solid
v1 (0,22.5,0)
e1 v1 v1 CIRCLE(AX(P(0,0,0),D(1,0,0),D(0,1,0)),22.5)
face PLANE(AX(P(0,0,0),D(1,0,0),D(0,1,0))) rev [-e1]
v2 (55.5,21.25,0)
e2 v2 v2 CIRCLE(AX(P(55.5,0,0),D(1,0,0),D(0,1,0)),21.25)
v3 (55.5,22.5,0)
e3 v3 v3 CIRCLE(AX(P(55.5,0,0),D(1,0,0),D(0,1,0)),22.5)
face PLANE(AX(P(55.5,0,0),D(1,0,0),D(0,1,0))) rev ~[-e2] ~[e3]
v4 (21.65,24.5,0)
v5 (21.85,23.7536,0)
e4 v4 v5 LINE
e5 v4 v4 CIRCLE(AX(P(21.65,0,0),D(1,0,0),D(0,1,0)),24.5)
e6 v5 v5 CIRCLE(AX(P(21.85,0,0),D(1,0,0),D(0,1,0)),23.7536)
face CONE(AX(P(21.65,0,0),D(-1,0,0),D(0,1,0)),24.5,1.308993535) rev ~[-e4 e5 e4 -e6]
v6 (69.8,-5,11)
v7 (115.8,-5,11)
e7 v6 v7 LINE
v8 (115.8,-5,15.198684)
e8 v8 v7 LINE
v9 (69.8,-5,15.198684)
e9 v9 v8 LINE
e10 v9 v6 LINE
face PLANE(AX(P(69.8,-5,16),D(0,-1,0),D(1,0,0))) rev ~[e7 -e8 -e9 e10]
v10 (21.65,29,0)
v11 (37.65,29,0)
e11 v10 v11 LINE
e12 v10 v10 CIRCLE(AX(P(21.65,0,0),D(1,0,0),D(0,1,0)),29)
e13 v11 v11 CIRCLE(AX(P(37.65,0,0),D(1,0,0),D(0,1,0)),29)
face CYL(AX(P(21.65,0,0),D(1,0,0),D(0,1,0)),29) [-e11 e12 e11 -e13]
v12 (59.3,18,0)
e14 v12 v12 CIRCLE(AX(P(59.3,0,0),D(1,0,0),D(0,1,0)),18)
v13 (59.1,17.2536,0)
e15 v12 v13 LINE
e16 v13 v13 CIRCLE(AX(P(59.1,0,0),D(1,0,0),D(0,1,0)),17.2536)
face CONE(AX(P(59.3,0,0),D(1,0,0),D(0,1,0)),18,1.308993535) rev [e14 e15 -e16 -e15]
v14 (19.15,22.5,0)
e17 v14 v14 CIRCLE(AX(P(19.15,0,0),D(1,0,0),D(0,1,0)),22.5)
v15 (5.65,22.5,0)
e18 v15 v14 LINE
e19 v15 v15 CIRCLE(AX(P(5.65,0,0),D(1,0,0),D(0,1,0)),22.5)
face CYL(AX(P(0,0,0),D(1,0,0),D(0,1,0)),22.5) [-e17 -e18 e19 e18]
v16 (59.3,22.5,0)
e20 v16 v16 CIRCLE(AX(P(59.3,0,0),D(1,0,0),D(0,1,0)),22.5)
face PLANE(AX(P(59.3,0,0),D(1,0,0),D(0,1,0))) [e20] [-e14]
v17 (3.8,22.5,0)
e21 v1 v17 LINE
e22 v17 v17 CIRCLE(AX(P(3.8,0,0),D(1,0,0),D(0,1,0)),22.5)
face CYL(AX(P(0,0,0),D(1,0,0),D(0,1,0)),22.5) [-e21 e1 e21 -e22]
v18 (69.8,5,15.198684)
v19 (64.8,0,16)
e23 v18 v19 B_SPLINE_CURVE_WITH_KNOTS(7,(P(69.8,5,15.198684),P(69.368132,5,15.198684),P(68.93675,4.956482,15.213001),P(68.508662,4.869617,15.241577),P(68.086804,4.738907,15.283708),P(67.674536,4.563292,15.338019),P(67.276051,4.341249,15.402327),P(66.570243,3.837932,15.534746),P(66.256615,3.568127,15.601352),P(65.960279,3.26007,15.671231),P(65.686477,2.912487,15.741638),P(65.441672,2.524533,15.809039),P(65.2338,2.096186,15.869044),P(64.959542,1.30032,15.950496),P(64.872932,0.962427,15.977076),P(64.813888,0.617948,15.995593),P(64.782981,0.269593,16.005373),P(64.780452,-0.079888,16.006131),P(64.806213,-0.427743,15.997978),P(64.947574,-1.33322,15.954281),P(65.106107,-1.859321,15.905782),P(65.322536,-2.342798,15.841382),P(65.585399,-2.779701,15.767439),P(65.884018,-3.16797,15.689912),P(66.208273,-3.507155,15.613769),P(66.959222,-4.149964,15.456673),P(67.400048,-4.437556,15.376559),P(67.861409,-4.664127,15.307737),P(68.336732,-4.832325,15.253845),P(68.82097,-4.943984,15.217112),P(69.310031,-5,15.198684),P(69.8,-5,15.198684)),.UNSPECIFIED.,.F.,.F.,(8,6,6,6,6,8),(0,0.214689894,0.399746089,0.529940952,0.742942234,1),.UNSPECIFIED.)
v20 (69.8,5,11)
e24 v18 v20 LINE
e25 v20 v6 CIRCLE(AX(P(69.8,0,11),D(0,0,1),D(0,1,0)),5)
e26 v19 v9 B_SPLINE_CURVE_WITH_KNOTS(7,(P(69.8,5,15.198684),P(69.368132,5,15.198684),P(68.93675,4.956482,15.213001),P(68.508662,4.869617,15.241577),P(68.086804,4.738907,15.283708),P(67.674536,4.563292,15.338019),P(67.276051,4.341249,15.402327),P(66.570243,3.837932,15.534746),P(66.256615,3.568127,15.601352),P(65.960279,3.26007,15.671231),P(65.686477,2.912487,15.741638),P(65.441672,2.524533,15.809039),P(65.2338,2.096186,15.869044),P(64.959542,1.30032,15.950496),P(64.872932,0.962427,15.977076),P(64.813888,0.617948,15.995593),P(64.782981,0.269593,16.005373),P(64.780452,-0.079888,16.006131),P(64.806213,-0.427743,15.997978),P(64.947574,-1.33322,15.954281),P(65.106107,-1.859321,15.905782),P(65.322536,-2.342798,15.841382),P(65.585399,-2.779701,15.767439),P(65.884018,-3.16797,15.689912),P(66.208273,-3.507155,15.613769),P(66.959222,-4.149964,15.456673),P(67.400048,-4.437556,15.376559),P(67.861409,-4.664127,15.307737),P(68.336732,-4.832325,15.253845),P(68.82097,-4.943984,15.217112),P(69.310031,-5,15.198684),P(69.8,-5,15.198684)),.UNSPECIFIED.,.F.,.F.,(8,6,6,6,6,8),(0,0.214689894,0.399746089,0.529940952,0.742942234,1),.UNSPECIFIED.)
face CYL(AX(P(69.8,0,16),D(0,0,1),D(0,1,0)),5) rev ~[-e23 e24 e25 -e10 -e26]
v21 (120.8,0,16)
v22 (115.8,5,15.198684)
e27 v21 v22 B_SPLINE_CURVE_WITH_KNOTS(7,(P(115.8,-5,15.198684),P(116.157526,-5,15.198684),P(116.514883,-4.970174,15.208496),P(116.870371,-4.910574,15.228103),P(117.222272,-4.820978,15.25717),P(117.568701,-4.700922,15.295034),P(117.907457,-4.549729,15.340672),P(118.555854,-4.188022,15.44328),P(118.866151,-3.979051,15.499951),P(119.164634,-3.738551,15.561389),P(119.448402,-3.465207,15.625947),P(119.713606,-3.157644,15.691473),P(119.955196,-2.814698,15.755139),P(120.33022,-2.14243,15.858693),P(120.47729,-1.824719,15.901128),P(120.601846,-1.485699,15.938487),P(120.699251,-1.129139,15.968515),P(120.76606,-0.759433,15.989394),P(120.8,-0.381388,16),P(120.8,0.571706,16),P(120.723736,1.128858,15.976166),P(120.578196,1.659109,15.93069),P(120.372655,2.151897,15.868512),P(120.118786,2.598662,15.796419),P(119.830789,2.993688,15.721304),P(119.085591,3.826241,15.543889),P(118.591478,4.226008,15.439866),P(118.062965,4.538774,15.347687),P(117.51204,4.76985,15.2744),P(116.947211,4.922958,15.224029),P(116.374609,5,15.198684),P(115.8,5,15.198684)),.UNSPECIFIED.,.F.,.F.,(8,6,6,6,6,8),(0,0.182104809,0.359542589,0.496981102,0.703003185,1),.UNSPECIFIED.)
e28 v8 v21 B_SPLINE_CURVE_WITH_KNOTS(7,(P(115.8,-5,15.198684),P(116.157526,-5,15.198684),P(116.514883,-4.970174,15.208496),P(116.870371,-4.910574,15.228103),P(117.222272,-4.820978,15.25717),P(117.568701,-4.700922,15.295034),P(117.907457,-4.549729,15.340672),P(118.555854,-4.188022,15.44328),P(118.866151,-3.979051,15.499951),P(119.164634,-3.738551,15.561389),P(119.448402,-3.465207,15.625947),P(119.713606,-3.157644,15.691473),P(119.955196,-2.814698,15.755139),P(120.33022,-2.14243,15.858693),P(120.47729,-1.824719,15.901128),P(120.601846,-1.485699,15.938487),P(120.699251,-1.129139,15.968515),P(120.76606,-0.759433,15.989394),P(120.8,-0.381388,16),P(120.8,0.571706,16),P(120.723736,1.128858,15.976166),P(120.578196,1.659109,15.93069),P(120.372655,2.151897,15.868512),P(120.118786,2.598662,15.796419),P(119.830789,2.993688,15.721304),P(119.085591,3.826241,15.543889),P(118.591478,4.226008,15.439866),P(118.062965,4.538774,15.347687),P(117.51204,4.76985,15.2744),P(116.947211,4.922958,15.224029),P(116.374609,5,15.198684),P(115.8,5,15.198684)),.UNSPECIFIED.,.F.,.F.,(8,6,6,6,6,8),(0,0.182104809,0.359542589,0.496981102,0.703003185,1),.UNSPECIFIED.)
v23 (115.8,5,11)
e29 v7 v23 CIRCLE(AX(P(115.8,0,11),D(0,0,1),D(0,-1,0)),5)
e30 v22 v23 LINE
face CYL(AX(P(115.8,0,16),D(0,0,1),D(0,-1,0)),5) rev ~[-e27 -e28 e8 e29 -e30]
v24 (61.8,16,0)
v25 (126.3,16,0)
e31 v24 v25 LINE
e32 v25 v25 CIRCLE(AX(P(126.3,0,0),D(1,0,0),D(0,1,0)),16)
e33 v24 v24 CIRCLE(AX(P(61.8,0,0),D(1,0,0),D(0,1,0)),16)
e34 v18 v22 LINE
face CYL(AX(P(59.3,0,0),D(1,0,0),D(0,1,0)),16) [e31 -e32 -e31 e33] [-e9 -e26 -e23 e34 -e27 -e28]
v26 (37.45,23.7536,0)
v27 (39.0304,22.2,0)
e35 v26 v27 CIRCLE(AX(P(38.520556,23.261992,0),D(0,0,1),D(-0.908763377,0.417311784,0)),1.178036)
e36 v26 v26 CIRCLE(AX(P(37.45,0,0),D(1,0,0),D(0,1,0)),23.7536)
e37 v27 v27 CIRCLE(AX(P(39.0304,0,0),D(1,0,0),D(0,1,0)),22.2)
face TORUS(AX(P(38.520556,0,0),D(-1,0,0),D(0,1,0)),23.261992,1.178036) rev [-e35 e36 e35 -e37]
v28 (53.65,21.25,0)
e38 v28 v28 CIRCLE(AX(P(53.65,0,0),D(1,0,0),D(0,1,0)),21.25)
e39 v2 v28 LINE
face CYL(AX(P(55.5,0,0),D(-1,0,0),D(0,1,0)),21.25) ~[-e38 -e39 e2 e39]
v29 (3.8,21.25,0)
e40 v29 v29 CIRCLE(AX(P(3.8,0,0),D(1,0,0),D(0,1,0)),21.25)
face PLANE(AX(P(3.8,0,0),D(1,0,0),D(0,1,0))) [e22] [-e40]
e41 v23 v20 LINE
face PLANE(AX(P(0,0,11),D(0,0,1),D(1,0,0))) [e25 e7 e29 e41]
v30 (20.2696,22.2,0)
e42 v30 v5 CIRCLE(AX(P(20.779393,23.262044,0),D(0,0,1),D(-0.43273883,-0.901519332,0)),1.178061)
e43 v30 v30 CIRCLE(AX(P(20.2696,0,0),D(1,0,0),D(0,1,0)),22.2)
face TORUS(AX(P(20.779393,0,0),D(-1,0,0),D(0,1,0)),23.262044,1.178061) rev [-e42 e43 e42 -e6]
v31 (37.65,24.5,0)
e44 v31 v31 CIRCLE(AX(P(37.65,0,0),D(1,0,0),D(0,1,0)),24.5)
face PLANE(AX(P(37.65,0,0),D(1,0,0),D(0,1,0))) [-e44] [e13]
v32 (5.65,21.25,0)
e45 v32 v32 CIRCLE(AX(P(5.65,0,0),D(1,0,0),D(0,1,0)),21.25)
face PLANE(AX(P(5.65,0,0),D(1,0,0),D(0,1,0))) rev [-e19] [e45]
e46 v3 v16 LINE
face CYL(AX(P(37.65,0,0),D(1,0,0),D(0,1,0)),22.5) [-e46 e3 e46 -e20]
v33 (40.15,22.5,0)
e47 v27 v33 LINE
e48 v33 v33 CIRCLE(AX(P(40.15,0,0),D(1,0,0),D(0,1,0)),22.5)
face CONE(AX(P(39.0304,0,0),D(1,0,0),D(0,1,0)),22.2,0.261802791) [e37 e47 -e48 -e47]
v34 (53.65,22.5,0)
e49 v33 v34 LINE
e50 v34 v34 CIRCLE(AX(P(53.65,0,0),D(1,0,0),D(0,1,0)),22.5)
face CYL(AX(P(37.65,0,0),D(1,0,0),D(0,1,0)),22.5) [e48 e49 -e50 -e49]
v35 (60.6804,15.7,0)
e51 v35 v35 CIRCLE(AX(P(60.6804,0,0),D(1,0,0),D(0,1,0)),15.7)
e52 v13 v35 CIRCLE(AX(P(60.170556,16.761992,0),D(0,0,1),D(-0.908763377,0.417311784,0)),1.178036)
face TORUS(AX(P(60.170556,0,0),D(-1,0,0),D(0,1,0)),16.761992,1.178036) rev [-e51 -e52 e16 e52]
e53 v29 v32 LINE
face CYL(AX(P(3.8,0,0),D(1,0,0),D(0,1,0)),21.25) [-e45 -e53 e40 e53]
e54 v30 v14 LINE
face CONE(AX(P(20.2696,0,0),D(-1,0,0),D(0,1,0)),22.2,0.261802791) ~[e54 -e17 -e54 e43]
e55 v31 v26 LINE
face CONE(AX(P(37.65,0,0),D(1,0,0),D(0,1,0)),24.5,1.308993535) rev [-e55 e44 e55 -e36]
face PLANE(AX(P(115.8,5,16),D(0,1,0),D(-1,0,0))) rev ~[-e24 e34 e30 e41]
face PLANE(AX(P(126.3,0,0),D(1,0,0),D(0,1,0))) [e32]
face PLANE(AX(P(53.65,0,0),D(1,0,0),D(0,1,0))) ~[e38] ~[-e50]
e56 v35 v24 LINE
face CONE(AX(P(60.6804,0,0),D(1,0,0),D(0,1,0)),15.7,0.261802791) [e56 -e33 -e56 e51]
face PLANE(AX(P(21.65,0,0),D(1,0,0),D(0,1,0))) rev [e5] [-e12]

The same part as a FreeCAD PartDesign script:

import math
import FreeCAD as App
import Part
import Sketcher
Q = App.Units.Quantity


def add_polygon(sketch, points):
    """Adds a closed chain of lines whose ends are joined by coincident constraints."""
    first, n = sketch.GeometryCount, len(points)
    for a, b in zip(points, points[1:] + points[:1]):
        sketch.addGeometry(Part.LineSegment(App.Vector(*a, 0), App.Vector(*b, 0)), False)
    for i in range(n):
        sketch.addConstraint(Sketcher.Constraint("Coincident", first + i, 2, first + (i + 1) % n, 1))

doc = App.newDocument("Part")
body = doc.addObject("PartDesign::Body", "Body")

sketch1 = body.newObject("Sketcher::SketchObject", "Sketch")
sketch1.AttachmentSupport = (doc.getObject("XY_Plane"), [""])
sketch1.MapMode = "FlatFace"
add_polygon(sketch1, [(0, 22), (0, 0), (126, 0), (126, 16), (59, 16), (59, 22), (38, 22), (38, 29), (22, 29), (22, 22)])
sketch1.addConstraint([
    Sketcher.Constraint("Vertical", 0),
    Sketcher.Constraint("Horizontal", 1),
    Sketcher.Constraint("Vertical", 2),
    Sketcher.Constraint("Horizontal", 3),
    Sketcher.Constraint("Vertical", 4),
    Sketcher.Constraint("Horizontal", 5),
    Sketcher.Constraint("Vertical", 6),
    Sketcher.Constraint("Horizontal", 7),
    Sketcher.Constraint("Vertical", 8),
    Sketcher.Constraint("Horizontal", 9),
    Sketcher.Constraint("Coincident", 0, 2, -1, 1),
    Sketcher.Constraint("Horizontal", 5, 2, 8, 2),
    Sketcher.Constraint("Equal", 5, 9),
    Sketcher.Constraint("Equal", 7, 2),
    Sketcher.Constraint("Equal", 4, 6),
    Sketcher.Constraint("DistanceX", 3, 2, 3, 1, Q("67 mm")),
    Sketcher.Constraint("DistanceX", 7, 2, 7, 1, Q("16 mm")),
    Sketcher.Constraint("DistanceX", 1, 1, 1, 2, Q("126.3 mm")),
    Sketcher.Constraint("DistanceY", 0, 2, 0, 1, Q("22.5 mm")),
])
revolution = body.newObject("PartDesign::Revolution", "Revolution")
revolution.Profile = sketch1
revolution.ReferenceAxis = (sketch1, ["H_Axis"])
revolution.Angle = 360

sketch2 = body.newObject("Sketcher::SketchObject", "Sketch001")
sketch2.AttachmentSupport = (doc.getObject("XY_Plane"), [""])
sketch2.MapMode = "FlatFace"
add_polygon(sketch2, [(3.8, 22.5), (3.8, 21.2), (5.7, 21.2), (5.7, 22.5)])
sketch2.addConstraint([
    Sketcher.Constraint("Vertical", 0),
    Sketcher.Constraint("Horizontal", 1),
    Sketcher.Constraint("Vertical", 2),
    Sketcher.Constraint("Horizontal", 3),
    Sketcher.Constraint("DistanceX", 1, 1, 1, 2, Q("1.85 mm")),
    Sketcher.Constraint("DistanceY", 0, 2, 0, 1, Q("1.25 mm")),
    Sketcher.Constraint("DistanceX", -1, 1, 0, 2, Q("3.8 mm")),
    Sketcher.Constraint("DistanceY", -1, 1, 2, 2, Q("22.5 mm")),
])
groove = body.newObject("PartDesign::Groove", "Groove")
groove.Profile = sketch2
groove.ReferenceAxis = (sketch2, ["H_Axis"])
groove.Angle = 360

sketch3 = body.newObject("Sketcher::SketchObject", "Sketch002")
sketch3.AttachmentSupport = (doc.getObject("XY_Plane"), [""])
sketch3.MapMode = "FlatFace"
sketch3.addGeometry([
    Part.LineSegment(App.Vector(21.9, 23.8, 0), App.Vector(21.6, 24.5, 0)),
    Part.LineSegment(App.Vector(21.6, 24.5, 0), App.Vector(19.1, 24.5, 0)),
    Part.LineSegment(App.Vector(19.1, 24.5, 0), App.Vector(19.1, 22.5, 0)),
    Part.LineSegment(App.Vector(19.1, 22.5, 0), App.Vector(20.3, 22.2, 0)),
    Part.ArcOfCircle(Part.Circle(App.Vector(20.8, 23.3, 0), App.Vector(0, 0, 1), 1.2), math.radians(-116), math.radians(25)),
], False)
sketch3.addConstraint([
    Sketcher.Constraint("Coincident", 0, 2, 1, 1),
    Sketcher.Constraint("Coincident", 1, 2, 2, 1),
    Sketcher.Constraint("Coincident", 2, 2, 3, 1),
    Sketcher.Constraint("Coincident", 3, 2, 4, 1),
    Sketcher.Constraint("Coincident", 4, 2, 0, 1),
    Sketcher.Constraint("Horizontal", 1),
    Sketcher.Constraint("Vertical", 2),
    Sketcher.Constraint("DistanceY", 2, 2, 2, 1, Q("2 mm")),
    Sketcher.Constraint("Angle", 0, Q("105.0002 deg")),
    Sketcher.Constraint("Angle", 3, Q("-15.0002 deg")),
    Sketcher.Constraint("DistanceX", 1, 2, 1, 1, Q("2.5 mm")),
    Sketcher.Constraint("Radius", 4, Q("1.178 mm")),
    Sketcher.Constraint("DistanceY", -1, 1, 0, 2, Q("24.5 mm")),
    Sketcher.Constraint("DistanceY", -1, 1, 3, 2, Q("22.2 mm")),
    Sketcher.Constraint("DistanceX", 0, 2, 4, 2, Q("0.2 mm")),
    Sketcher.Constraint("DistanceX", -1, 1, 0, 2, Q("21.65 mm")),
])
groove2 = body.newObject("PartDesign::Groove", "Groove001")
groove2.Profile = sketch3
groove2.ReferenceAxis = (sketch3, ["H_Axis"])
groove2.Angle = 360

sketch4 = body.newObject("Sketcher::SketchObject", "Sketch003")
sketch4.AttachmentSupport = (doc.getObject("XY_Plane"), [""])
sketch4.MapMode = "FlatFace"
add_polygon(sketch4, [(53.6, 21.2), (55.5, 21.2), (55.5, 22.5), (53.6, 22.5)])
sketch4.addConstraint([
    Sketcher.Constraint("Horizontal", 0),
    Sketcher.Constraint("Vertical", 1),
    Sketcher.Constraint("Horizontal", 2),
    Sketcher.Constraint("Vertical", 3),
    Sketcher.Constraint("DistanceX", 0, 1, 0, 2, Q("1.85 mm")),
    Sketcher.Constraint("DistanceY", 1, 1, 1, 2, Q("1.25 mm")),
    Sketcher.Constraint("DistanceX", -1, 1, 0, 2, Q("55.5 mm")),
    Sketcher.Constraint("DistanceY", -1, 1, 1, 2, Q("22.5 mm")),
])
groove3 = body.newObject("PartDesign::Groove", "Groove002")
groove3.Profile = sketch4
groove3.ReferenceAxis = (sketch4, ["H_Axis"])
groove3.Angle = 360

sketch5 = body.newObject("Sketcher::SketchObject", "Sketch004")
sketch5.AttachmentSupport = (doc.getObject("XY_Plane"), [""])
sketch5.MapMode = "FlatFace"
sketch5.addGeometry([
    Part.LineSegment(App.Vector(40.1, 24.5, 0), App.Vector(37.6, 24.5, 0)),
    Part.LineSegment(App.Vector(37.6, 24.5, 0), App.Vector(37.5, 23.8, 0)),
    Part.ArcOfCircle(Part.Circle(App.Vector(38.5, 23.3, 0), App.Vector(0, 0, 1), 1.2), math.radians(155), math.radians(296)),
    Part.LineSegment(App.Vector(39, 22.2, 0), App.Vector(40.1, 22.5, 0)),
    Part.LineSegment(App.Vector(40.1, 22.5, 0), App.Vector(40.1, 24.5, 0)),
], False)
sketch5.addConstraint([
    Sketcher.Constraint("Coincident", 0, 2, 1, 1),
    Sketcher.Constraint("Coincident", 1, 2, 2, 1),
    Sketcher.Constraint("Coincident", 2, 2, 3, 1),
    Sketcher.Constraint("Coincident", 3, 2, 4, 1),
    Sketcher.Constraint("Coincident", 4, 2, 0, 1),
    Sketcher.Constraint("Horizontal", 0),
    Sketcher.Constraint("Vertical", 4),
    Sketcher.Constraint("DistanceY", 4, 1, 4, 2, Q("2 mm")),
    Sketcher.Constraint("Angle", 1, Q("-105.0002 deg")),
    Sketcher.Constraint("Angle", 3, Q("15.0002 deg")),
    Sketcher.Constraint("DistanceX", 0, 2, 0, 1, Q("2.5 mm")),
    Sketcher.Constraint("Radius", 2, Q("1.178 mm")),
    Sketcher.Constraint("DistanceY", -1, 1, 0, 2, Q("24.5 mm")),
    Sketcher.Constraint("DistanceY", -1, 1, 2, 2, Q("22.2 mm")),
    Sketcher.Constraint("DistanceX", 1, 2, 0, 2, Q("0.2 mm")),
    Sketcher.Constraint("DistanceX", -1, 1, 0, 2, Q("37.65 mm")),
])
groove4 = body.newObject("PartDesign::Groove", "Groove003")
groove4.Profile = sketch5
groove4.ReferenceAxis = (sketch5, ["H_Axis"])
groove4.Angle = 360

sketch6 = body.newObject("Sketcher::SketchObject", "Sketch005")
sketch6.AttachmentSupport = (doc.getObject("XY_Plane"), [""])
sketch6.MapMode = "FlatFace"
sketch6.AttachmentOffset = App.Placement(App.Vector(0, 0, 16), App.Rotation())
sketch6.addGeometry([
    Part.ArcOfCircle(Part.Circle(App.Vector(70, 0, 0), App.Vector(0, 0, 1), 5), math.radians(90), math.radians(270)),
    Part.LineSegment(App.Vector(70, -5, 0), App.Vector(116, -5, 0)),
    Part.ArcOfCircle(Part.Circle(App.Vector(116, 0, 0), App.Vector(0, 0, 1), 5), math.radians(-90), math.radians(90)),
    Part.LineSegment(App.Vector(116, 5, 0), App.Vector(70, 5, 0)),
], False)
sketch6.addConstraint([
    Sketcher.Constraint("Tangent", 0, 2, 1, 1),
    Sketcher.Constraint("Tangent", 1, 2, 2, 1),
    Sketcher.Constraint("Tangent", 2, 2, 3, 1),
    Sketcher.Constraint("Tangent", 3, 2, 0, 1),
    Sketcher.Constraint("Horizontal", 1),
    Sketcher.Constraint("Horizontal", 3),
    Sketcher.Constraint("PointOnObject", 0, 3, -1),
    Sketcher.Constraint("Radius", 0, Q("5 mm")),
    Sketcher.Constraint("DistanceX", 1, 1, 1, 2, Q("46 mm")),
    Sketcher.Constraint("DistanceX", -1, 1, 0, 3, Q("69.8 mm")),
])
pocket1 = body.newObject("PartDesign::Pocket", "Pocket")
pocket1.Profile = sketch6
pocket1.Length = 5

sketch7 = body.newObject("Sketcher::SketchObject", "Sketch006")
sketch7.AttachmentSupport = (doc.getObject("XY_Plane"), [""])
sketch7.MapMode = "FlatFace"
sketch7.addGeometry([
    Part.LineSegment(App.Vector(61.8, 18, 0), App.Vector(59.3, 18, 0)),
    Part.LineSegment(App.Vector(59.3, 18, 0), App.Vector(59.1, 17.3, 0)),
    Part.ArcOfCircle(Part.Circle(App.Vector(60.2, 16.8, 0), App.Vector(0, 0, 1), 1.2), math.radians(155), math.radians(296)),
    Part.LineSegment(App.Vector(60.7, 15.7, 0), App.Vector(61.8, 16, 0)),
    Part.LineSegment(App.Vector(61.8, 16, 0), App.Vector(61.8, 18, 0)),
], False)
sketch7.addConstraint([
    Sketcher.Constraint("Coincident", 0, 2, 1, 1),
    Sketcher.Constraint("Coincident", 1, 2, 2, 1),
    Sketcher.Constraint("Coincident", 2, 2, 3, 1),
    Sketcher.Constraint("Coincident", 3, 2, 4, 1),
    Sketcher.Constraint("Coincident", 4, 2, 0, 1),
    Sketcher.Constraint("Horizontal", 0),
    Sketcher.Constraint("Vertical", 4),
    Sketcher.Constraint("DistanceY", 4, 1, 4, 2, Q("2 mm")),
    Sketcher.Constraint("Angle", 1, Q("-105.0002 deg")),
    Sketcher.Constraint("Angle", 3, Q("15.0002 deg")),
    Sketcher.Constraint("DistanceX", 0, 2, 0, 1, Q("2.5 mm")),
    Sketcher.Constraint("DistanceY", -1, 1, 0, 2, Q("18 mm")),
    Sketcher.Constraint("Radius", 2, Q("1.178 mm")),
    Sketcher.Constraint("DistanceX", -1, 1, 0, 2, Q("59.3 mm")),
    Sketcher.Constraint("DistanceX", -1, 1, 1, 2, Q("59.1 mm")),
    Sketcher.Constraint("DistanceY", -1, 1, 2, 2, Q("15.7 mm")),
])
groove5 = body.newObject("PartDesign::Groove", "Groove004")
groove5.Profile = sketch7
groove5.ReferenceAxis = (sketch7, ["H_Axis"])
groove5.Angle = 360

doc.recompute()
